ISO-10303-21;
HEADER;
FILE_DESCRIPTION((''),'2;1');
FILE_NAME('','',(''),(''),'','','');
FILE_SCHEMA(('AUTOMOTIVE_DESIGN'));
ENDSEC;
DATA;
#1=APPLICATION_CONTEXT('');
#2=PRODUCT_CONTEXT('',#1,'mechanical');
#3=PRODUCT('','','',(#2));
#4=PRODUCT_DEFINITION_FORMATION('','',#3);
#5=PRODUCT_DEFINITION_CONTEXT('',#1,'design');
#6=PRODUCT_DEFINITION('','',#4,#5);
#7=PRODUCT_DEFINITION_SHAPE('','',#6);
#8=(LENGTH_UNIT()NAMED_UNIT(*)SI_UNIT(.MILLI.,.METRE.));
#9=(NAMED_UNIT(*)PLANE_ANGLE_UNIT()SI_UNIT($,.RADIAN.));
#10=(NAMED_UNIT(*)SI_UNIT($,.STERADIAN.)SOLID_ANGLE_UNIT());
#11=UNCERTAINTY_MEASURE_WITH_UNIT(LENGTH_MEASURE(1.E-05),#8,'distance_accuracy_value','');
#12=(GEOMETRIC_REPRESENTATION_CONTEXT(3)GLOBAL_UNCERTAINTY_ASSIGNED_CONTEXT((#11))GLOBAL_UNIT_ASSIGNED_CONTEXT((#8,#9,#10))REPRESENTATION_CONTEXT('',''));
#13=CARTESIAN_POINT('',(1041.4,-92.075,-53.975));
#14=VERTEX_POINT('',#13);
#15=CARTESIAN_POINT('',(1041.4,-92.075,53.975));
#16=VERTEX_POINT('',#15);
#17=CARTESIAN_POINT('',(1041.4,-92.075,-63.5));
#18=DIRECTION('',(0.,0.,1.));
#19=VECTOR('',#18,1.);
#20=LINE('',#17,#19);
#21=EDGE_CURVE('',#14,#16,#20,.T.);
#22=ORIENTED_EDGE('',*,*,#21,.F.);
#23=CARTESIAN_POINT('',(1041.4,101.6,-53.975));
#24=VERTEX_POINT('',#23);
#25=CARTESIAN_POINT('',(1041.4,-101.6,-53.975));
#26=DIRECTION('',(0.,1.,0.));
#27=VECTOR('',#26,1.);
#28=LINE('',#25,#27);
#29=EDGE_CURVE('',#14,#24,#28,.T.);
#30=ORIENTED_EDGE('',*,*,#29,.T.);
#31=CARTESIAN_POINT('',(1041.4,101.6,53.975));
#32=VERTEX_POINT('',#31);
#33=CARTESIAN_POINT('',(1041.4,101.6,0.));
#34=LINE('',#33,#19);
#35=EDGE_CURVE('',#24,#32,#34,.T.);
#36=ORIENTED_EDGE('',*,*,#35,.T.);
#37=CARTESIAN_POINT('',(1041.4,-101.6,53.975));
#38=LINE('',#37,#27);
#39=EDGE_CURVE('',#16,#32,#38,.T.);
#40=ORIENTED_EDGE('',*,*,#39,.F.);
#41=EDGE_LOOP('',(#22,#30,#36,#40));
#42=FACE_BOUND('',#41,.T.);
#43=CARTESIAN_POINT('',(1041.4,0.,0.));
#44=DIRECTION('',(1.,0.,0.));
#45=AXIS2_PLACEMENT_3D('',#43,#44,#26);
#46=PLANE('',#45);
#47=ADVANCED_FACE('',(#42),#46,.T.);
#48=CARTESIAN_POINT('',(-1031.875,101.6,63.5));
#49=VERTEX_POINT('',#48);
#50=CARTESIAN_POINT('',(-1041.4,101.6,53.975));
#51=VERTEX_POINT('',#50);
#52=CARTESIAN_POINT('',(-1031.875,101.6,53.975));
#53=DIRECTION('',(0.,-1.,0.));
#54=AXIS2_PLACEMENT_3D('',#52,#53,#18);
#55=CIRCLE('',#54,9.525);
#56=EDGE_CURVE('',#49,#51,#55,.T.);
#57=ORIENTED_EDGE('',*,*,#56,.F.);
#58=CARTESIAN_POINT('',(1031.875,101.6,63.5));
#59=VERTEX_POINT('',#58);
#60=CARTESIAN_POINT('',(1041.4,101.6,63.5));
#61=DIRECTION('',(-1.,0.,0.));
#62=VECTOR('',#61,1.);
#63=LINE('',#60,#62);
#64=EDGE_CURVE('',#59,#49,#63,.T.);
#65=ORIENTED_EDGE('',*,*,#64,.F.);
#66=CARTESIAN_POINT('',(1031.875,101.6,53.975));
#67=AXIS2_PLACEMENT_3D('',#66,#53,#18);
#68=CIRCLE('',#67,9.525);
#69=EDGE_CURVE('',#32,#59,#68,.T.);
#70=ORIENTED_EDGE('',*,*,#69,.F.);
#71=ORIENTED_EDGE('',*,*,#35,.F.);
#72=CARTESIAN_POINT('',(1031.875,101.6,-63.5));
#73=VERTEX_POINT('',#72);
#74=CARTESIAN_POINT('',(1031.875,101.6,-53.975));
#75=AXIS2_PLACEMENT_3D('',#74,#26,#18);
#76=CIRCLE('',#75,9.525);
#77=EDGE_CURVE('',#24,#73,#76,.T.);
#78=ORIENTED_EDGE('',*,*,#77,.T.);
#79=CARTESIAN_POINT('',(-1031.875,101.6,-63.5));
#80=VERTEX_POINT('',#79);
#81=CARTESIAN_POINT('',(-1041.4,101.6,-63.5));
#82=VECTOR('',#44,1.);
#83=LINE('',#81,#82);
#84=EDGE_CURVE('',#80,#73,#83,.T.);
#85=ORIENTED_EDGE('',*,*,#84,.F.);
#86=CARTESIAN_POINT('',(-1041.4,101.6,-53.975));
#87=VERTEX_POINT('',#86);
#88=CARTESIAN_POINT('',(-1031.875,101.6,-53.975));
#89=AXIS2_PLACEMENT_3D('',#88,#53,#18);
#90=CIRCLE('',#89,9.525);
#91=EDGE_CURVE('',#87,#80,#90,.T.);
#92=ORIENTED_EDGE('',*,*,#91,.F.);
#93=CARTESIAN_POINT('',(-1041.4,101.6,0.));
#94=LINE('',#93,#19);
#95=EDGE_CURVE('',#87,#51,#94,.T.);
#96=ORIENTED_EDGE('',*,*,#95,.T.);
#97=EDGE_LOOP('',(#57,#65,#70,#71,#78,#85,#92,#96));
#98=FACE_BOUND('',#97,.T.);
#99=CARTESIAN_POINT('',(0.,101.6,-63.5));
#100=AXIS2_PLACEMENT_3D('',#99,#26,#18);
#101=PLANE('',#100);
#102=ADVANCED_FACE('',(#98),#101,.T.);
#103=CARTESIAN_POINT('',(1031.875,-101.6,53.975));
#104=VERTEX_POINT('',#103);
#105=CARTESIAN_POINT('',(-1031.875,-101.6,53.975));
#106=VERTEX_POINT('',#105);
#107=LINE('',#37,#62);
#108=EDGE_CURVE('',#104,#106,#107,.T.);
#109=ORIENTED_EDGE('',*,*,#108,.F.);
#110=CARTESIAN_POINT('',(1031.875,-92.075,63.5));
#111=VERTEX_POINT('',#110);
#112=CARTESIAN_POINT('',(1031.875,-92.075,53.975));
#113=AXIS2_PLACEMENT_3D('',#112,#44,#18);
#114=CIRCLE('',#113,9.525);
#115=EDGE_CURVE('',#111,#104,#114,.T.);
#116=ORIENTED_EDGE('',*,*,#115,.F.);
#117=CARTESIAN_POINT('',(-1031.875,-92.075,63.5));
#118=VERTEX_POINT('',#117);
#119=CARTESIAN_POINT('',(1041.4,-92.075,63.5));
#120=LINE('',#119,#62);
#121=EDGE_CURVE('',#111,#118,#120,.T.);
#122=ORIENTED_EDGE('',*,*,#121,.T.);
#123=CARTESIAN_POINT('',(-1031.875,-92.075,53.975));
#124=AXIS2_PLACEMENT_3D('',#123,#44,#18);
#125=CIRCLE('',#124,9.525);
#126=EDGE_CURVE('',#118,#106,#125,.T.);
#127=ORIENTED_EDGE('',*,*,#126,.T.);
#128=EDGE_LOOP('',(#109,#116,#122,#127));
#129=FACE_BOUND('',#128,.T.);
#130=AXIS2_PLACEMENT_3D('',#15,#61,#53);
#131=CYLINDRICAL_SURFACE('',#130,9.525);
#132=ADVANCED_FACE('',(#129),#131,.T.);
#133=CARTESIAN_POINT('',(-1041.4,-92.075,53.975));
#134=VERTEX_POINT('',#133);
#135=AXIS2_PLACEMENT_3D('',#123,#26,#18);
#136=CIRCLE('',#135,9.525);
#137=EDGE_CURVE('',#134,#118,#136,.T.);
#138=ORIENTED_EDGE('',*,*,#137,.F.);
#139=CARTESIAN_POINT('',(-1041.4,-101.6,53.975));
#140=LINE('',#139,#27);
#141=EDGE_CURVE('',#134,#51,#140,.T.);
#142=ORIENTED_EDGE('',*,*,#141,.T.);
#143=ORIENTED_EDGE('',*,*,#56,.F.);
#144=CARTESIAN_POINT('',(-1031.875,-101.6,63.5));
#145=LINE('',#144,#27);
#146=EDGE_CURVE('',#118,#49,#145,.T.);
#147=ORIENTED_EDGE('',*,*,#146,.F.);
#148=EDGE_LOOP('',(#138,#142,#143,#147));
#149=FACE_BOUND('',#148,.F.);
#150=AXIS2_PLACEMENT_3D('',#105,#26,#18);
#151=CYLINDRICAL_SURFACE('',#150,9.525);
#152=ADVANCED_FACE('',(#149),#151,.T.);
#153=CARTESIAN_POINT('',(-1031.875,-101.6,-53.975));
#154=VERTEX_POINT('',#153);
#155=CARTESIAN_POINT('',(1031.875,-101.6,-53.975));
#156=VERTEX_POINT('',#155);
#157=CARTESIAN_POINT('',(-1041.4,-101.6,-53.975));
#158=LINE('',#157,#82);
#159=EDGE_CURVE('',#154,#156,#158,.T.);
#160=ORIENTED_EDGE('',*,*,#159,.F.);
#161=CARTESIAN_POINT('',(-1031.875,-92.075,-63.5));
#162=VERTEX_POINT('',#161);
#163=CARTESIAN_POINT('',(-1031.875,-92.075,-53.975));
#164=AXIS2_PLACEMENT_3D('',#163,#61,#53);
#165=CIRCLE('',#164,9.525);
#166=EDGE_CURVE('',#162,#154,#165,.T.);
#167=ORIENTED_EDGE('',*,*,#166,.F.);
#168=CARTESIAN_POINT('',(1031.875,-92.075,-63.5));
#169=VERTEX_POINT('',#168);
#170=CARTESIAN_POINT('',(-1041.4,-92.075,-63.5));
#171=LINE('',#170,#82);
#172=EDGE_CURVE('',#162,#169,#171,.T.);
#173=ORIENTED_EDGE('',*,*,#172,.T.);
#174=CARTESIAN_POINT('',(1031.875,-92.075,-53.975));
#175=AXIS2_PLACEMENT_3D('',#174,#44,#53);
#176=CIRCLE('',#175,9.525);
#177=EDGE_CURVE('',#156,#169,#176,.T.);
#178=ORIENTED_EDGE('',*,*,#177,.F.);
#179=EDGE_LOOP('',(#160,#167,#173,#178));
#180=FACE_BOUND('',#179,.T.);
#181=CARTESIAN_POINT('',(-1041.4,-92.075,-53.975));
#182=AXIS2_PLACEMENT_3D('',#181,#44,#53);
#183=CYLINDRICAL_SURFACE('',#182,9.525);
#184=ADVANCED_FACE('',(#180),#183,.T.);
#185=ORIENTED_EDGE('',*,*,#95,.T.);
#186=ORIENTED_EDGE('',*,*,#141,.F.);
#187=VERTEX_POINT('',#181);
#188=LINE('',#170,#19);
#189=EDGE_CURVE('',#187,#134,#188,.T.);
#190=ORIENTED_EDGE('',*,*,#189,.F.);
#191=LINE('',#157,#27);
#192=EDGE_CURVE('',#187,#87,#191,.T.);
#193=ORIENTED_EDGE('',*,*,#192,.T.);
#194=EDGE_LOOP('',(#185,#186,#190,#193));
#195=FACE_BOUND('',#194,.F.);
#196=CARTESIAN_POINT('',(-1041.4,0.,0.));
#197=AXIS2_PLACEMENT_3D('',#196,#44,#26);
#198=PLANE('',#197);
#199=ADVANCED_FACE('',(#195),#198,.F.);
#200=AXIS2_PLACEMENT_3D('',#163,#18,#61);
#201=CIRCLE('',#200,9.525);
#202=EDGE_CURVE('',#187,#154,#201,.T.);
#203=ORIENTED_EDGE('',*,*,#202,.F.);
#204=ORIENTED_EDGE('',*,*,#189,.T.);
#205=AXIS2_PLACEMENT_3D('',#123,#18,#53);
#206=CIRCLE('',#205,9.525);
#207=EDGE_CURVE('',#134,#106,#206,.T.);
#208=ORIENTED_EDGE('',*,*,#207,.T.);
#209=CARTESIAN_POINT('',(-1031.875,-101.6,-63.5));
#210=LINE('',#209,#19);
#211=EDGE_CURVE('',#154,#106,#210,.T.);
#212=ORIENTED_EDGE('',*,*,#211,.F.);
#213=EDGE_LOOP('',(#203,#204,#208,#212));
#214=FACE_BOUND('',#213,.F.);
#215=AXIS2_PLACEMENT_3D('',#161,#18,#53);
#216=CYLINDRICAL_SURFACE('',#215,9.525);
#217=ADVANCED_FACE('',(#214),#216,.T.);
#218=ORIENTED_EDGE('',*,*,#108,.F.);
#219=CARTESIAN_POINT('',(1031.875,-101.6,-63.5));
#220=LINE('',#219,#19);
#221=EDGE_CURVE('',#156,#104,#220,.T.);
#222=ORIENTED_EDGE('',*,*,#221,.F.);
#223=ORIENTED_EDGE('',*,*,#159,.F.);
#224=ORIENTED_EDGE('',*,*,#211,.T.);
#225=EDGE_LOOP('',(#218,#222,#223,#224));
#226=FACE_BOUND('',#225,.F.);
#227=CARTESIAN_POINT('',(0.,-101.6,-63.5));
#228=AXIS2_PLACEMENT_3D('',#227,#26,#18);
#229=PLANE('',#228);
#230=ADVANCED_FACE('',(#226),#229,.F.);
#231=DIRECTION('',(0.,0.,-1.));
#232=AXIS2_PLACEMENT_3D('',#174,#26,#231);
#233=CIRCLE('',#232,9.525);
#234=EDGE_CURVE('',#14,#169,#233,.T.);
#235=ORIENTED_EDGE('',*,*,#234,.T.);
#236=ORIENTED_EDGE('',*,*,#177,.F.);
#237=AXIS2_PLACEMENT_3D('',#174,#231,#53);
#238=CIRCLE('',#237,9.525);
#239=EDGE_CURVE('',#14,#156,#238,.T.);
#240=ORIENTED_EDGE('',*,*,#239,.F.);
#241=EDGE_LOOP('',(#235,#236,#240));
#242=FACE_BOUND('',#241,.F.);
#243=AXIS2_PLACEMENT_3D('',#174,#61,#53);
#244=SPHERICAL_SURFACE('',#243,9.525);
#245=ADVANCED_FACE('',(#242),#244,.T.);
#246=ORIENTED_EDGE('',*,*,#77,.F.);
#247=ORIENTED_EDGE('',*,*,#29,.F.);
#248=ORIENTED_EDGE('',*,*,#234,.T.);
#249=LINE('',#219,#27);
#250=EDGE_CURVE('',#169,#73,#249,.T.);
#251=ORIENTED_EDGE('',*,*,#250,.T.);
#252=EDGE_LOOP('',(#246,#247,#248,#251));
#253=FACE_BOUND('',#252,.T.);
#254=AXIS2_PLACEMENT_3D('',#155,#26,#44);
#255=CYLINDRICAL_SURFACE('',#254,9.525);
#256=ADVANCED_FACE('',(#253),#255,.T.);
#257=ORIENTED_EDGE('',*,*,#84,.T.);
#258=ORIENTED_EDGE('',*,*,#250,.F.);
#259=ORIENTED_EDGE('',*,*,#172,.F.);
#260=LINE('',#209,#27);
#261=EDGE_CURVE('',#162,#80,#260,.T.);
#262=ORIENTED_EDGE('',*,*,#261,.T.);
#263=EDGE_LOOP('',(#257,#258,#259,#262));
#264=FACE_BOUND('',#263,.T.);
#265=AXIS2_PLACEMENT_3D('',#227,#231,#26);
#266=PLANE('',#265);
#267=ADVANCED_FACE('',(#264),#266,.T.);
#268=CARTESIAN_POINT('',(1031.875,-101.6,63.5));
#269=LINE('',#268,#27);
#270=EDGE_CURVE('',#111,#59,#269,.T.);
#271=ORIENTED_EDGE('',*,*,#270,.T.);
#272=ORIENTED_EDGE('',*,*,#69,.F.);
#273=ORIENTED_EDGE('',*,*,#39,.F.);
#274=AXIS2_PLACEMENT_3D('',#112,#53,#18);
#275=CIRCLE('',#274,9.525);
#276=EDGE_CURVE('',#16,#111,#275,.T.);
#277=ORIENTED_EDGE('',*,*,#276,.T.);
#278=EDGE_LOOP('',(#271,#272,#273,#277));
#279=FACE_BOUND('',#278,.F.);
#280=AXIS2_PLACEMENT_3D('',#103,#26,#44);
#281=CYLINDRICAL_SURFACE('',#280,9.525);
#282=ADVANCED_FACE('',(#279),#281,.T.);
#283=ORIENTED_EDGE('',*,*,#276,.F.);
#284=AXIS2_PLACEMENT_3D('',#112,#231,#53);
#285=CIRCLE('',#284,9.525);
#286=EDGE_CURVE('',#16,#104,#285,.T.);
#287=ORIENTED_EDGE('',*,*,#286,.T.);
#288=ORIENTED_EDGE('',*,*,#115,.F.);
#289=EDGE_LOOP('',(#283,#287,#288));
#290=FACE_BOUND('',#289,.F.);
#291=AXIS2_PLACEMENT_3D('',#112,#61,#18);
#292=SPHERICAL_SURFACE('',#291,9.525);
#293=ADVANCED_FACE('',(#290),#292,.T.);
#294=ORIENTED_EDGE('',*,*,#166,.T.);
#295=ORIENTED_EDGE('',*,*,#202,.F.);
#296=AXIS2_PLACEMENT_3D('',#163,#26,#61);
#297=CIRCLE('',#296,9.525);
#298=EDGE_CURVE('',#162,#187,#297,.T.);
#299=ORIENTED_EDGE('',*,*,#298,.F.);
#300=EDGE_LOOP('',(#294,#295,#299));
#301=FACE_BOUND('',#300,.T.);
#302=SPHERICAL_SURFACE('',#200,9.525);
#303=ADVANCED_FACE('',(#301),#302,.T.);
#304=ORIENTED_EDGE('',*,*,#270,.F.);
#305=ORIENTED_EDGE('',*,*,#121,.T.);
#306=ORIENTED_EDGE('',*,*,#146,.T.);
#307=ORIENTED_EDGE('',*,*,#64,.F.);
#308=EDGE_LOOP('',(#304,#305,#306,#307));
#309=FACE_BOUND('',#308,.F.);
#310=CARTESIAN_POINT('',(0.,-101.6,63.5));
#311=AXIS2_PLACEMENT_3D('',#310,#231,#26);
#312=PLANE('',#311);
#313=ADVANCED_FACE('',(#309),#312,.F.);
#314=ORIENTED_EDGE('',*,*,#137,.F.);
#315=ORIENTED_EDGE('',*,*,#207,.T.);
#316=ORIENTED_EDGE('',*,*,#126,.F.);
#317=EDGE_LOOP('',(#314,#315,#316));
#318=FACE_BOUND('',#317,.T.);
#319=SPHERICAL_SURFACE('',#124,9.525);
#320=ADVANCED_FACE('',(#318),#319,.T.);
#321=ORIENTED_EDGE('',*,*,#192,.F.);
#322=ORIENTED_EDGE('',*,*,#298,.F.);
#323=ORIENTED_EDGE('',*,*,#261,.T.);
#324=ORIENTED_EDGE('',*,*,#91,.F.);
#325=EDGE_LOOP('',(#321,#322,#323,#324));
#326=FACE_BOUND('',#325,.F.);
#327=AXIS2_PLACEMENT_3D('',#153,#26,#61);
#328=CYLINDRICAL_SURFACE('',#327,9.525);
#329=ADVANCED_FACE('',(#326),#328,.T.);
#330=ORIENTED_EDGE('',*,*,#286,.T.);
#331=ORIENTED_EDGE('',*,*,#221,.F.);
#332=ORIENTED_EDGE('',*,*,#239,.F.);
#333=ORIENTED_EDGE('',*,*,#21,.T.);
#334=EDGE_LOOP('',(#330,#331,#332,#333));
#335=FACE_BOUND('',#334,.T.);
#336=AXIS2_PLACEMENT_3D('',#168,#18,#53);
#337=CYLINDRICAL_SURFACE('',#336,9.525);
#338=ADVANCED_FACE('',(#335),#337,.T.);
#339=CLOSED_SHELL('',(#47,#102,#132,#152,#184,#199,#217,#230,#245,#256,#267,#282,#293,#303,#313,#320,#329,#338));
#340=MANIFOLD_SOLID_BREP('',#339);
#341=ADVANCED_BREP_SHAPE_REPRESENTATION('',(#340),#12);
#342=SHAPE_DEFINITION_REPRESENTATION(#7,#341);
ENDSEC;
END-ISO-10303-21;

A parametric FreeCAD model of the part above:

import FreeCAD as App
import Part
import Sketcher

V = App.Vector
Q = App.Units.Quantity


def edges_at(feature, points):
    """Names of the edges that pass closest to the given points."""
    edges = feature.Shape.Edges
    near = lambda p: min(range(len(edges)), key=lambda i: edges[i].distToShape(Part.Vertex(*p))[0])
    return sorted({f"Edge{near(p) + 1}" for p in points})


def add_polygon(sketch, points):
    """Adds a closed chain of lines whose ends are joined by coincident constraints."""
    first, n = sketch.GeometryCount, len(points)
    for a, b in zip(points, points[1:] + points[:1]):
        sketch.addGeometry(Part.LineSegment(App.Vector(*a, 0), App.Vector(*b, 0)), False)
    for i in range(n):
        sketch.addConstraint(Sketcher.Constraint("Coincident", first + i, 2, first + (i + 1) % n, 1))

doc = App.newDocument("Part")
body = doc.addObject("PartDesign::Body", "Body")

# Sketch on YZ plane
sketch1 = doc.addObject("Sketcher::SketchObject", "Sketch")
body.addObject(sketch1)
sketch1.AttachmentSupport = (doc.YZ_Plane, [""])
sketch1.MapMode = "FlatFace"
add_polygon(sketch1, [(-101.6, 63.5), (-101.6, -63.5), (101.6, -63.5), (101.6, 63.5)])  # lines 0-3
sketch1.addConstraint(Sketcher.Constraint("Vertical", 0))
sketch1.addConstraint(Sketcher.Constraint("Horizontal", 1))
sketch1.addConstraint(Sketcher.Constraint("Vertical", 2))
sketch1.addConstraint(Sketcher.Constraint("Horizontal", 3))
sketch1.addConstraint(Sketcher.Constraint("Symmetric", 0, 2, 2, 2, -1, 1))
sketch1.addConstraint(Sketcher.Constraint("DistanceX", 1, 1, 1, 2, Q("8 in")))
sketch1.addConstraint(Sketcher.Constraint("DistanceY", 0, 2, 0, 1, Q("5 in")))
pad1 = doc.addObject("PartDesign::Pad", "Pad")
body.addObject(pad1)
pad1.Profile = sketch1
pad1.Length = Q("82 in")
pad1.Midplane = True
doc.recompute()

fillet = doc.addObject("PartDesign::Fillet", "Fillet")
body.addObject(fillet)
fillet.Base = (pad1, edges_at(pad1, [
    (0, -101.6, 63.5),
    (-1041.4, 0, 63.5),
    (-1041.4, -101.6, 0),
    (-1041.4, 0, -63.5),
    (0, -101.6, -63.5),
    (1041.4, 0, 63.5),
    (1041.4, -101.6, 0),
    (1041.4, 0, -63.5),
]))
fillet.Radius = Q("0.375 in")

doc.recompute()
